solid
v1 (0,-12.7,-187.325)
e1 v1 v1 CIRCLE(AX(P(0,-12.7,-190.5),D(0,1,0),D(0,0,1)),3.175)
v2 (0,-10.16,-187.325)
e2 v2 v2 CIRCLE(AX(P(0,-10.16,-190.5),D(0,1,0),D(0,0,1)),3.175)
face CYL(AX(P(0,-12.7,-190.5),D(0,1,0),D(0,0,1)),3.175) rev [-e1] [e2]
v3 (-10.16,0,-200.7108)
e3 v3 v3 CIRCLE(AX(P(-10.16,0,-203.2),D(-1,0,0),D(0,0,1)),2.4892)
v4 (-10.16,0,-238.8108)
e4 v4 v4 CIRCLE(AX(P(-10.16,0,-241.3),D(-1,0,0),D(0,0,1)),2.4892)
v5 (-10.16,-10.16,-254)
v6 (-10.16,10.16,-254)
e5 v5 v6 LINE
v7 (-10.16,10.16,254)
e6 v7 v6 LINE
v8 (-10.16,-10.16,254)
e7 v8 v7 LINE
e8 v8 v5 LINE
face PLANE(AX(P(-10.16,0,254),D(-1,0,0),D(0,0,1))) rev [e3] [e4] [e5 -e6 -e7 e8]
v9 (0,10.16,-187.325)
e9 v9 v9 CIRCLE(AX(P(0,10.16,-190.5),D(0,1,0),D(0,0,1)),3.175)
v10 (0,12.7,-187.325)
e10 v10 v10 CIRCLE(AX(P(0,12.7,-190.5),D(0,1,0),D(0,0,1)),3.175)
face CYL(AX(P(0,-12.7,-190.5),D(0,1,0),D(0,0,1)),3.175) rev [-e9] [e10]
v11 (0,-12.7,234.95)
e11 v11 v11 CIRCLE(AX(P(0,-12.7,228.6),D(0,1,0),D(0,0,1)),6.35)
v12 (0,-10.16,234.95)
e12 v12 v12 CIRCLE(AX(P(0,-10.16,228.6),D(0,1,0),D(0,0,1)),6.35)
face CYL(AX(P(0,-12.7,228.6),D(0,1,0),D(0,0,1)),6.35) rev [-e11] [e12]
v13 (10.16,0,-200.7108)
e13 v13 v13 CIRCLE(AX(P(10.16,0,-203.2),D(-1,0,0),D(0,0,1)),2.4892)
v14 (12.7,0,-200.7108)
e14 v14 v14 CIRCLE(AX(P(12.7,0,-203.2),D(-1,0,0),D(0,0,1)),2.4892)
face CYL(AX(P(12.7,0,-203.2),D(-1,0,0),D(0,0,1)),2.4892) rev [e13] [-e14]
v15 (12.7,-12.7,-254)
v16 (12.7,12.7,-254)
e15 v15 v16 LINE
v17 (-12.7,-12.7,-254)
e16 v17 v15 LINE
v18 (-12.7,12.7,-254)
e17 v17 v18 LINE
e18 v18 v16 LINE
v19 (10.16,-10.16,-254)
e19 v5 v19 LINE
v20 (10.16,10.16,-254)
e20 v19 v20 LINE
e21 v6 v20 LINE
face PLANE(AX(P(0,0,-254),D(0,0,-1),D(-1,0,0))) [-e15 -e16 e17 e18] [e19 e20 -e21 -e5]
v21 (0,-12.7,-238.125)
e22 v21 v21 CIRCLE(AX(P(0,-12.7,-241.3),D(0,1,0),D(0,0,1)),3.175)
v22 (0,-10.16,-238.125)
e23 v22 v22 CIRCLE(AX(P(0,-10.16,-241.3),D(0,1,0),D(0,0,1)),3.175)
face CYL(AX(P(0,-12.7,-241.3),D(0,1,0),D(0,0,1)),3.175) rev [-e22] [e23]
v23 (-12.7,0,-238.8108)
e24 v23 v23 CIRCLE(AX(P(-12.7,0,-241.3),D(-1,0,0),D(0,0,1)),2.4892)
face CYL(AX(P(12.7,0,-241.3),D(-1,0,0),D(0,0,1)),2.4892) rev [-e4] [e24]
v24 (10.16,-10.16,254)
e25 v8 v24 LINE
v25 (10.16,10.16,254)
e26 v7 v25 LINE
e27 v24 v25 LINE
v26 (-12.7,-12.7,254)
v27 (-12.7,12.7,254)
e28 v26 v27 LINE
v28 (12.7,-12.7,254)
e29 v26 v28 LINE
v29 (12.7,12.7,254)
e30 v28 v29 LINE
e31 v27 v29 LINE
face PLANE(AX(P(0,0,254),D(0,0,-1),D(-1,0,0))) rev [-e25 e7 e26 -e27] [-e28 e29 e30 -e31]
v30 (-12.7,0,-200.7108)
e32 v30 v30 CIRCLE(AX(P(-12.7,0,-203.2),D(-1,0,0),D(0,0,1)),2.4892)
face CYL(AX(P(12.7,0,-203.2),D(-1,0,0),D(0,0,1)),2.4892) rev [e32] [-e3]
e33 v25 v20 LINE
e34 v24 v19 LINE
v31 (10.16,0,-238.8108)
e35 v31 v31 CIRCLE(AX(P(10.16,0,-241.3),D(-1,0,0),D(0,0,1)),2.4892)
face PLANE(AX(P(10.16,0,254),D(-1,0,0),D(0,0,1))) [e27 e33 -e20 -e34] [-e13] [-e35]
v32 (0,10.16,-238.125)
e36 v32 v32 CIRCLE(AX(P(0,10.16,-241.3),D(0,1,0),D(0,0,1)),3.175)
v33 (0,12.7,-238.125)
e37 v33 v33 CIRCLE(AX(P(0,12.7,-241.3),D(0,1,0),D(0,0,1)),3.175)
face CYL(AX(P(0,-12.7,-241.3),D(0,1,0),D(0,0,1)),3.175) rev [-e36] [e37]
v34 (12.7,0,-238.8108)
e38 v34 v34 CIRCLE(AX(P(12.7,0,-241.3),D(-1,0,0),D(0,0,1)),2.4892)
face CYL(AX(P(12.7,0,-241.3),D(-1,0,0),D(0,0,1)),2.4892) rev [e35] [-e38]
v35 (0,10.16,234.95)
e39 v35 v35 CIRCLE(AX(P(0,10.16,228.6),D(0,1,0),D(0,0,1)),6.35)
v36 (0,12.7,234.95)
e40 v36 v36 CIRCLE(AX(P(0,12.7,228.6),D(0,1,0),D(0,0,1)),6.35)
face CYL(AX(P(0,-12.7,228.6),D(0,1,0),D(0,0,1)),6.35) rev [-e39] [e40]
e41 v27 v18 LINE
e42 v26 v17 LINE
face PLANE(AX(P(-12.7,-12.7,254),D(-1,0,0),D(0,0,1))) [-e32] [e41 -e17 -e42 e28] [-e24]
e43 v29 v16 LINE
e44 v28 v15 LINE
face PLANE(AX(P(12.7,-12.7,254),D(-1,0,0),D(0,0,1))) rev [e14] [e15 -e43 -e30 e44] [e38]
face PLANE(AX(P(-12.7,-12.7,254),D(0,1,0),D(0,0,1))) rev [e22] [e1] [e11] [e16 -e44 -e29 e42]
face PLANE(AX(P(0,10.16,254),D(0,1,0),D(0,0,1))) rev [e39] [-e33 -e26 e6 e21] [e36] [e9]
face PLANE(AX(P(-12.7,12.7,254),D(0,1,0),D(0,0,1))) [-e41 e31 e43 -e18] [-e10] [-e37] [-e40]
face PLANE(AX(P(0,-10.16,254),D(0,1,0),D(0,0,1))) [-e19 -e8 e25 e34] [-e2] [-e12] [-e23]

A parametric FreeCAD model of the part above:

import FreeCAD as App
import Part
import Sketcher

V = App.Vector
Q = App.Units.Quantity


def add_polygon(sketch, points):
    """Adds a closed chain of lines whose ends are joined by coincident constraints."""
    first, n = sketch.GeometryCount, len(points)
    for a, b in zip(points, points[1:] + points[:1]):
        sketch.addGeometry(Part.LineSegment(App.Vector(*a, 0), App.Vector(*b, 0)), False)
    for i in range(n):
        sketch.addConstraint(Sketcher.Constraint("Coincident", first + i, 2, first + (i + 1) % n, 1))

doc = App.newDocument("Part")
body = doc.addObject("PartDesign::Body", "Body")

# Sketch on XY plane
sketch1 = body.newObject("Sketcher::SketchObject", "Sketch")
sketch1.AttachmentSupport = (doc.getObject("XY_Plane"), [""])
sketch1.MapMode = "FlatFace"
add_polygon(sketch1, [(-12.7, 12.7), (-12.7, -12.7), (12.7, -12.7), (12.7, 12.7)])  # lines 0-3
add_polygon(sketch1, [(10.16, -10.16), (-10.16, -10.16), (-10.16, 10.16), (10.16, 10.16)])  # lines 4-7
sketch1.addConstraint([
    Sketcher.Constraint("Vertical", 0),
    Sketcher.Constraint("Horizontal", 1),
    Sketcher.Constraint("Vertical", 2),
    Sketcher.Constraint("Horizontal", 3),
    Sketcher.Constraint("Horizontal", 4),
    Sketcher.Constraint("Vertical", 5),
    Sketcher.Constraint("Horizontal", 6),
    Sketcher.Constraint("Vertical", 7),
    Sketcher.Constraint("Symmetric", 0, 2, 2, 2, -1, 1),
    Sketcher.Constraint("Symmetric", 4, 2, 6, 2, -1, 1),
    Sketcher.Constraint("Equal", 3, 0),
    Sketcher.Constraint("Equal", 6, 5),
    Sketcher.Constraint("DistanceX", 1, 1, 1, 2, Q("1 in")),
    Sketcher.Constraint("DistanceX", 4, 2, 4, 1, Q("0.8 in")),
])
pad1 = body.newObject("PartDesign::Pad", "Pad")
pad1.Profile = sketch1
pad1.Length = Q("20 in")
pad1.Midplane = True

# Sketch on XZ plane
sketch2 = body.newObject("Sketcher::SketchObject", "Sketch001")
sketch2.AttachmentSupport = (doc.getObject("XZ_Plane"), [""])
sketch2.MapMode = "FlatFace"
sketch2.AttachmentOffset = App.Placement(V(0, 0, -0.5 * 25.4), App.Rotation())
sketch2.addGeometry([
    Part.Circle(V(0, -241.3, 0), V(0, 0, 1), 3.175),
    Part.Circle(V(0, -190.5, 0), V(0, 0, 1), 3.175),
], False)
sketch2.addConstraint([
    Sketcher.Constraint("Equal", 0, 1),
    Sketcher.Constraint("PointOnObject", 0, 3, -2),
    Sketcher.Constraint("PointOnObject", 1, 3, -2),
    Sketcher.Constraint("Diameter", 0, Q("0.25 in")),
    Sketcher.Constraint("DistanceY", 0, 3, 1, 3, Q("2 in")),
    Sketcher.Constraint("DistanceY", 0, 3, -1, 1, Q("9.5 in")),
])
pocket1 = body.newObject("PartDesign::Pocket", "Pocket")
pocket1.Profile = sketch2
pocket1.Type = "ThroughAll"
pocket1.Reversed = True

# Sketch on XZ plane
sketch3 = body.newObject("Sketcher::SketchObject", "Sketch002")
sketch3.AttachmentSupport = (doc.getObject("XZ_Plane"), [""])
sketch3.MapMode = "FlatFace"
sketch3.AttachmentOffset = App.Placement(V(0, 0, -0.5 * 25.4), App.Rotation())
sketch3.addGeometry(Part.Circle(V(0, 228.6, 0), V(0, 0, 1), 6.35), False)
sketch3.addConstraint([
    Sketcher.Constraint("PointOnObject", 0, 3, -2),
    Sketcher.Constraint("Diameter", 0, Q("0.5 in")),
    Sketcher.Constraint("DistanceY", -1, 1, 0, 3, Q("9 in")),
])
pocket2 = body.newObject("PartDesign::Pocket", "Pocket001")
pocket2.Profile = sketch3
pocket2.Type = "ThroughAll"
pocket2.Reversed = True

# Sketch on YZ plane
sketch4 = body.newObject("Sketcher::SketchObject", "Sketch003")
sketch4.AttachmentSupport = (doc.getObject("YZ_Plane"), [""])
sketch4.MapMode = "FlatFace"
sketch4.AttachmentOffset = App.Placement(V(0, 0, -0.5 * 25.4), App.Rotation())
sketch4.addGeometry([
    Part.Circle(V(0, -241.3, 0), V(0, 0, 1), 2.4892),
    Part.Circle(V(0, -203.2, 0), V(0, 0, 1), 2.4892),
], False)
sketch4.addConstraint([
    Sketcher.Constraint("Equal", 0, 1),
    Sketcher.Constraint("PointOnObject", 0, 3, -2),
    Sketcher.Constraint("PointOnObject", 1, 3, -2),
    Sketcher.Constraint("Diameter", 0, Q("0.196 in")),
    Sketcher.Constraint("DistanceY", 1, 3, -1, 1, Q("8 in")),
    Sketcher.Constraint("DistanceY", 0, 3, -1, 1, Q("9.5 in")),
])
pocket3 = body.newObject("PartDesign::Pocket", "Pocket002")
pocket3.Profile = sketch4
pocket3.Type = "ThroughAll"
pocket3.Reversed = True

doc.recompute()
